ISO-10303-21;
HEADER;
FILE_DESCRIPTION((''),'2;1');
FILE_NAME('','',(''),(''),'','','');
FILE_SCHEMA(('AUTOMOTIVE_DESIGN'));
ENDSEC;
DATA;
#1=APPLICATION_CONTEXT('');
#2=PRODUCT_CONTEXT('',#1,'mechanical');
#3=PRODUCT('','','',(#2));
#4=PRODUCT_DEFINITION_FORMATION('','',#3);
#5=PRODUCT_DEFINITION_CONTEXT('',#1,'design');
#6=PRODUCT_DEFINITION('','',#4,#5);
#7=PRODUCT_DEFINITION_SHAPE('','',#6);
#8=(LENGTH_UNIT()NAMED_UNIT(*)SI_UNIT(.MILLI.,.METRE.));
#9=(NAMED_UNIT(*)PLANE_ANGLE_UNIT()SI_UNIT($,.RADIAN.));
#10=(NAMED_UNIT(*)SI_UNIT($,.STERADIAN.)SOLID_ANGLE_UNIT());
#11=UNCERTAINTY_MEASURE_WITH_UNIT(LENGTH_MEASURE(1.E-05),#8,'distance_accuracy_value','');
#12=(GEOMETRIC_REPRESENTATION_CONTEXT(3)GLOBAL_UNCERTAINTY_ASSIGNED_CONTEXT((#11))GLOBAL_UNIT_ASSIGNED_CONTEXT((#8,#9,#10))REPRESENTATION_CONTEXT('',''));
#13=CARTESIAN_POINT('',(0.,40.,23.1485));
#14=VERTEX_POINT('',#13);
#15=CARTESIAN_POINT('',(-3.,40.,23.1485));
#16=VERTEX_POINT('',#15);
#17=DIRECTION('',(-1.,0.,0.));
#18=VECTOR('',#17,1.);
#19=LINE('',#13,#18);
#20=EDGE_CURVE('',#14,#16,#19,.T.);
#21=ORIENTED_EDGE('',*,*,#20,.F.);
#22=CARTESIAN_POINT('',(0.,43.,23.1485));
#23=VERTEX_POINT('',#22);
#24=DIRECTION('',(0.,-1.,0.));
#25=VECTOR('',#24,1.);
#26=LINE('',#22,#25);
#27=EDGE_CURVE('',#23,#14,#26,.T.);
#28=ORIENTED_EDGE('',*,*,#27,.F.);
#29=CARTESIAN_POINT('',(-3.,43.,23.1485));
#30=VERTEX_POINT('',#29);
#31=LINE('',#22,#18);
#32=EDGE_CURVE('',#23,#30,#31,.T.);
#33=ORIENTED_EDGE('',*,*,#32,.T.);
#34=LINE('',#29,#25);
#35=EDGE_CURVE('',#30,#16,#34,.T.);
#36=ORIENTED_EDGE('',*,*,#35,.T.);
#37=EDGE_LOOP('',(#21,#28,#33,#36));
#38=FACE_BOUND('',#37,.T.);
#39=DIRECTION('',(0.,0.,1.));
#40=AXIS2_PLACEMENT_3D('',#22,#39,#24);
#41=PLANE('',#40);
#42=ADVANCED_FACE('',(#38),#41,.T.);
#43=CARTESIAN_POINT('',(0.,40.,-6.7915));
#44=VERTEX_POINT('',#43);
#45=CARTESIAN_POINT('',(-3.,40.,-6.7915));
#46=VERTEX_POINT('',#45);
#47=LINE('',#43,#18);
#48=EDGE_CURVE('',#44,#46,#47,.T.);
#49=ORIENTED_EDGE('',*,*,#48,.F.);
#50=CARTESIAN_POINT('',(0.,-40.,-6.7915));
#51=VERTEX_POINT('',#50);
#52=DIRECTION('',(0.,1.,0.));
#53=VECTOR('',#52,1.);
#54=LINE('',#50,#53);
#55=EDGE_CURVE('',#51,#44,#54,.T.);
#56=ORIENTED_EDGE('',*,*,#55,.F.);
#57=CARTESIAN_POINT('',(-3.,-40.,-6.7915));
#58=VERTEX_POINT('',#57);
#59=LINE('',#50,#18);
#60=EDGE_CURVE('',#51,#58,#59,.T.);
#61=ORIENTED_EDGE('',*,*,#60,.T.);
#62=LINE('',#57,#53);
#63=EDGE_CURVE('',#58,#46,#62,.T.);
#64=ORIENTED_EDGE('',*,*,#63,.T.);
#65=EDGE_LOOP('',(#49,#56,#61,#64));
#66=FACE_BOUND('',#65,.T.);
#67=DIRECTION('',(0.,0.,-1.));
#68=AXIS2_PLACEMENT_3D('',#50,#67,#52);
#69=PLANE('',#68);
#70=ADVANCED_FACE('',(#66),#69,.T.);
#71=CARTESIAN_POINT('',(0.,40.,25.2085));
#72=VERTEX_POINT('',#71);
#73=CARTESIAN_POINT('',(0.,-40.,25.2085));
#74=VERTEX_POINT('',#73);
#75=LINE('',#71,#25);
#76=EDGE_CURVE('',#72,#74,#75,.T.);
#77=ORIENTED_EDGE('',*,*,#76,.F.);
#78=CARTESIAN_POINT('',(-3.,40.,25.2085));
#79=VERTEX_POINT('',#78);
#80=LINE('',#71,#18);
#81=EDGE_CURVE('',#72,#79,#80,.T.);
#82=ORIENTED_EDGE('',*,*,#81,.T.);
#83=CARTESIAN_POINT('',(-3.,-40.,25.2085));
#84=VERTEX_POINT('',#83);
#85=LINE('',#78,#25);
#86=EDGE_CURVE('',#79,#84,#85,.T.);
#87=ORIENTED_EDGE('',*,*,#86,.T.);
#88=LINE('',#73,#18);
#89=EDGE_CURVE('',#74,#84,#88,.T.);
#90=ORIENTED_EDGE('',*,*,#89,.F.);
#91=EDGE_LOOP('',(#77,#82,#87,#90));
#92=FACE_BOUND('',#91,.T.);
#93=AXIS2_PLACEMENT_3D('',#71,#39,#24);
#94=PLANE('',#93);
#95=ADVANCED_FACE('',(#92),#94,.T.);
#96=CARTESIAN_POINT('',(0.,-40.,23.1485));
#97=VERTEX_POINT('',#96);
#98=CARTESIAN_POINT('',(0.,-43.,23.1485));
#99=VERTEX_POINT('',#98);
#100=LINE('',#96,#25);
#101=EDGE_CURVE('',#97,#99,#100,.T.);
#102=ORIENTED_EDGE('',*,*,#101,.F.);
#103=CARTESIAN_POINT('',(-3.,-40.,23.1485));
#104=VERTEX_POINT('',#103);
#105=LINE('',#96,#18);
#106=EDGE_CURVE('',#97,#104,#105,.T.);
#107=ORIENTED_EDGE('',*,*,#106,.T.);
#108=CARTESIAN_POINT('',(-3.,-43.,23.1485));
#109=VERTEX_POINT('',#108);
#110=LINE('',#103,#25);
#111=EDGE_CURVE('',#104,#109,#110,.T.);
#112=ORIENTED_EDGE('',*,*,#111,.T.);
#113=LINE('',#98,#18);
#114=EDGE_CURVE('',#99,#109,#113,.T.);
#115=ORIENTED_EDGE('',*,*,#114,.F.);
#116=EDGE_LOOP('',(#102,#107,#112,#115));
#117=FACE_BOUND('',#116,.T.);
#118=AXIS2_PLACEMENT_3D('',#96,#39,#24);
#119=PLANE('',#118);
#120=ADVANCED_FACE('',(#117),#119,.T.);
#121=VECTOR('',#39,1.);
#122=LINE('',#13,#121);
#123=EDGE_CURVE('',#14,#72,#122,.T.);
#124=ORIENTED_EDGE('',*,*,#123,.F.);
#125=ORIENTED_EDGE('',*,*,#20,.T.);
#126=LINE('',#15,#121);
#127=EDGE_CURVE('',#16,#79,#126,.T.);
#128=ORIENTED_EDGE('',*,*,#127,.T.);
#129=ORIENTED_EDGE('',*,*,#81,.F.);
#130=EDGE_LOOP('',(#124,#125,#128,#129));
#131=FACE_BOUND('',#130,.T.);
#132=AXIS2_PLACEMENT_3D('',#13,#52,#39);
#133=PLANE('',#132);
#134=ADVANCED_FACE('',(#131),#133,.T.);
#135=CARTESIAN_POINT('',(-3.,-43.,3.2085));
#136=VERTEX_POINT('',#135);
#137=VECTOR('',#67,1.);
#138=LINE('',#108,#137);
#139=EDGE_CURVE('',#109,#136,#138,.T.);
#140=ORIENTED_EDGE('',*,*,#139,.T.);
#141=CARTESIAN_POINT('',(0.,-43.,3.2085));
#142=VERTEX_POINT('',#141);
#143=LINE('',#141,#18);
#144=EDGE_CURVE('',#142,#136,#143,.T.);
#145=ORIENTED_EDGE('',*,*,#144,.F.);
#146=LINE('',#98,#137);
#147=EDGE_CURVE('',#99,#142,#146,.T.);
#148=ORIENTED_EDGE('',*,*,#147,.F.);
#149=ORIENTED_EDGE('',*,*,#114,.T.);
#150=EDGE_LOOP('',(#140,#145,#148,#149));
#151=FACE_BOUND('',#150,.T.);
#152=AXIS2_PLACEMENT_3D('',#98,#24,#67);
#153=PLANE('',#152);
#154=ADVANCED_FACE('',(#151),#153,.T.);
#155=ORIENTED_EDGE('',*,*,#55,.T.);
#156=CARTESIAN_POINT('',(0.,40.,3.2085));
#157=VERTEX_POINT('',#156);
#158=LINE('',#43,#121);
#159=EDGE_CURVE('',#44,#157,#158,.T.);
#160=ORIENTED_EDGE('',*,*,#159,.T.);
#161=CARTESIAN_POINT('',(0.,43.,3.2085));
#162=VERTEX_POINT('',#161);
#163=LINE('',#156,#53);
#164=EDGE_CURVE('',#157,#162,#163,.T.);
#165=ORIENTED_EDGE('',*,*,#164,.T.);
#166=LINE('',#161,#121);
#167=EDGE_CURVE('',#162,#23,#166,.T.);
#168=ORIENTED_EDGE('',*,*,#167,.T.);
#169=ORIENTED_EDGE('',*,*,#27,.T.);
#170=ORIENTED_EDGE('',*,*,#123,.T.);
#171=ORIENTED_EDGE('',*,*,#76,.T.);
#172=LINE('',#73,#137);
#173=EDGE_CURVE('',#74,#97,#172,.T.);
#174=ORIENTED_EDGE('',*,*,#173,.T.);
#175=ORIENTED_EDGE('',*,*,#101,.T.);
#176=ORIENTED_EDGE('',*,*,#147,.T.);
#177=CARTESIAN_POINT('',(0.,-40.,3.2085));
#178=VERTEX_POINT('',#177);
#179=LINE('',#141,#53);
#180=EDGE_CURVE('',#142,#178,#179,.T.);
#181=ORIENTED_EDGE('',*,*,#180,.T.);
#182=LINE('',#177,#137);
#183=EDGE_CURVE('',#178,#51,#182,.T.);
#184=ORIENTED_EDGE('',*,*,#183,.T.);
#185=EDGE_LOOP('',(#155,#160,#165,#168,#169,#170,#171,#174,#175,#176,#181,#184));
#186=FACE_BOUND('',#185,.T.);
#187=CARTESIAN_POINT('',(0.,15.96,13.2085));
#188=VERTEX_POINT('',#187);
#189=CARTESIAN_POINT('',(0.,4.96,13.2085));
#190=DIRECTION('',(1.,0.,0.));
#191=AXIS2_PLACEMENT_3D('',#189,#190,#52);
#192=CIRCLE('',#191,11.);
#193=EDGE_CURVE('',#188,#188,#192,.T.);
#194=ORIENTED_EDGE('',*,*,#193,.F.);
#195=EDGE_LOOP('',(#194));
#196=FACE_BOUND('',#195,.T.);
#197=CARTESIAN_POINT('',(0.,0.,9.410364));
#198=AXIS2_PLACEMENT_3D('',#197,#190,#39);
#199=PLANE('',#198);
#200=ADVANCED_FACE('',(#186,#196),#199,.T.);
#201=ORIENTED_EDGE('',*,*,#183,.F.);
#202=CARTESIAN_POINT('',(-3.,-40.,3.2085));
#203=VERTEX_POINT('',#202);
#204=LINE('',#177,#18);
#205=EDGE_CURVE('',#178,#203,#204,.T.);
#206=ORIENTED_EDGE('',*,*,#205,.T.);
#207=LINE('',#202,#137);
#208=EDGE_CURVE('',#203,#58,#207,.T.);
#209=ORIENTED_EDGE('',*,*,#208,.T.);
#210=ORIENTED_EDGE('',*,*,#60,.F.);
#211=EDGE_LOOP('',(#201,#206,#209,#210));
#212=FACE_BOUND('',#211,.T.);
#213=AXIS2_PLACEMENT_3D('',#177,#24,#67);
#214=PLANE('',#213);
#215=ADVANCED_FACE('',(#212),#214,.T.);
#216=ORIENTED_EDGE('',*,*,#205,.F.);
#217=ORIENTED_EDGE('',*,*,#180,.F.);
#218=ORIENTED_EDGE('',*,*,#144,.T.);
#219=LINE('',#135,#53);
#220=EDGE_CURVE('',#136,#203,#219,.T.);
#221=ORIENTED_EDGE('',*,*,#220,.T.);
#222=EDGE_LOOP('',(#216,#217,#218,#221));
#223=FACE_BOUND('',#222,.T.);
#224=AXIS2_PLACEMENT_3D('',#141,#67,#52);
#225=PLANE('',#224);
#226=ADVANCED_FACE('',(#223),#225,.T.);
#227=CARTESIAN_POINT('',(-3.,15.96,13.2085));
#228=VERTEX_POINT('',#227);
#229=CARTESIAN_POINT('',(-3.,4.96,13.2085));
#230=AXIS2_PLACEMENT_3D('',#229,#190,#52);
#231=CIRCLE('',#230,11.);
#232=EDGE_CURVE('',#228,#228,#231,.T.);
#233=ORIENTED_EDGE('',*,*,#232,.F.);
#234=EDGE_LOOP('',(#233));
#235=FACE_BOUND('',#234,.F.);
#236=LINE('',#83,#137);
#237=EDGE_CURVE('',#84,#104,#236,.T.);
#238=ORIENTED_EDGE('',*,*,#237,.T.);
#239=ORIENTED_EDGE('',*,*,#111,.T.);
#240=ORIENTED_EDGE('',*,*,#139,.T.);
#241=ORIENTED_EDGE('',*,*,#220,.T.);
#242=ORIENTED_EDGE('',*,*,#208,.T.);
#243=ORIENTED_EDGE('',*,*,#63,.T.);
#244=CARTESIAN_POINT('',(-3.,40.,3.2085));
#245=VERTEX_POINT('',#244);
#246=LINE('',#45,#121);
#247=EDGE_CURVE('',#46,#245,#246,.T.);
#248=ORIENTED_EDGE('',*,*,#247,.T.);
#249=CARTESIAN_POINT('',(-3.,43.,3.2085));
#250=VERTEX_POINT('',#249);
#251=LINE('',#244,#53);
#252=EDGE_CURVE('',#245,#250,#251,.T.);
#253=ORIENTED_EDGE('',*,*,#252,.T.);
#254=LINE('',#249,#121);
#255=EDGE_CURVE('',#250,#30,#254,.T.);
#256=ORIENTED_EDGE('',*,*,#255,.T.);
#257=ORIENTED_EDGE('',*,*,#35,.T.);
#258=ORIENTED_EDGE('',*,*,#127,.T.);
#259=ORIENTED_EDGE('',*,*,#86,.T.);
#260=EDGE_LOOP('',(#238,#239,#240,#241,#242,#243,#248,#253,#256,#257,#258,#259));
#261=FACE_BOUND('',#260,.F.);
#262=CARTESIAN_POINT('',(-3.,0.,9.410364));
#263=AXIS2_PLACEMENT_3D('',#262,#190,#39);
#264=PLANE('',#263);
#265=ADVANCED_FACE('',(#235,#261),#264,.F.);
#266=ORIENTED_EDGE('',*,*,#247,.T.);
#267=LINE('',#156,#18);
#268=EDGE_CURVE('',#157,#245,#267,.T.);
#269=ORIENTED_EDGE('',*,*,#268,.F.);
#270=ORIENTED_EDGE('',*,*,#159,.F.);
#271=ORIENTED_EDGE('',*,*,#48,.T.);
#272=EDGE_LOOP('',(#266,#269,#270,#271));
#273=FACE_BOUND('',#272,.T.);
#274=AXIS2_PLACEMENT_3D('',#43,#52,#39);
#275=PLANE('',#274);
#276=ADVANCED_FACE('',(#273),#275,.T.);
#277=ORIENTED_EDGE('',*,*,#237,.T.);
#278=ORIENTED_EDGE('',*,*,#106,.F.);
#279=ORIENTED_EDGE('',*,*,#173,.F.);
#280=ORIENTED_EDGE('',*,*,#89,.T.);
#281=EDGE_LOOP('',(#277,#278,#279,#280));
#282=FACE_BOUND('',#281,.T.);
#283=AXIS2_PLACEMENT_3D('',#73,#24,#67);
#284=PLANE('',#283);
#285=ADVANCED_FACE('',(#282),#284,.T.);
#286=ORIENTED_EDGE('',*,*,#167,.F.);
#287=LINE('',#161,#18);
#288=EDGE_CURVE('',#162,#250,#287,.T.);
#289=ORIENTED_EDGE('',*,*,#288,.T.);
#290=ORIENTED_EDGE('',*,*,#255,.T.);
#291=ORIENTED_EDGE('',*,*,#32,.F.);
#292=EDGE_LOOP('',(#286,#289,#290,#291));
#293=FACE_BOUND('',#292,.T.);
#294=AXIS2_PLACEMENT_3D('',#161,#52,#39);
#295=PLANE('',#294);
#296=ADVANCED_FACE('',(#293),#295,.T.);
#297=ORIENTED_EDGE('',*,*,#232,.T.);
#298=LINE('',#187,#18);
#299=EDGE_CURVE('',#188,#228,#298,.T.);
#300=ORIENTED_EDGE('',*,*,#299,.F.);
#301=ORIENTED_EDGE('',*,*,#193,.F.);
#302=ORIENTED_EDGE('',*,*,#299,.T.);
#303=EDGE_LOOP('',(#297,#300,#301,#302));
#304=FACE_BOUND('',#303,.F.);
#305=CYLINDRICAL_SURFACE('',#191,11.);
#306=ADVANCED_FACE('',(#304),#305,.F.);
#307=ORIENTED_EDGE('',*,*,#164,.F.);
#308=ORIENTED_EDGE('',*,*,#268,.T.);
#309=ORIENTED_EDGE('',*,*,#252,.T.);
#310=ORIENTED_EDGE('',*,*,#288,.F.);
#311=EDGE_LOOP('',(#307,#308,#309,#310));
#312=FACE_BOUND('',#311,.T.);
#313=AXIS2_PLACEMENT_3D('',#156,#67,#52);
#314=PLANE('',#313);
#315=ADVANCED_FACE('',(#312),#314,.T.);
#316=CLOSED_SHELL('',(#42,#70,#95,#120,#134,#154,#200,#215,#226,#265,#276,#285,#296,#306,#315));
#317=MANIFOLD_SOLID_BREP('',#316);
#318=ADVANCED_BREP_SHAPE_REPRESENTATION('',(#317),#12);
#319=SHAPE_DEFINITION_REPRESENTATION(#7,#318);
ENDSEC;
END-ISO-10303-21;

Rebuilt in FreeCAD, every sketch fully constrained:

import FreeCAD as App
import Part
import Sketcher
Q = App.Units.Quantity

doc = App.newDocument("Part")
body = doc.addObject("PartDesign::Body", "Body")

# Sketch on YZ plane
sketch1 = body.newObject("Sketcher::SketchObject", "Sketch")
sketch1.AttachmentSupport = (doc.getObject("YZ_Plane"), [""])
sketch1.MapMode = "FlatFace"
sketch1.addGeometry([
    Part.LineSegment(App.Vector(-40, -6.7915, 0), App.Vector(40, -6.7915, 0)),  # 0
    Part.LineSegment(App.Vector(40, -6.7915, 0), App.Vector(40, 3.2085, 0)),  # 1
    Part.LineSegment(App.Vector(40, 3.2085, 0), App.Vector(43, 3.2085, 0)),  # 2
    Part.LineSegment(App.Vector(43, 3.2085, 0), App.Vector(43, 23.1485, 0)),  # 3
    Part.LineSegment(App.Vector(43, 23.1485, 0), App.Vector(40, 23.1485, 0)),  # 4
    Part.LineSegment(App.Vector(40, 23.1485, 0), App.Vector(40, 25.2085, 0)),  # 5
    Part.LineSegment(App.Vector(40, 25.2085, 0), App.Vector(-40, 25.2085, 0)),  # 6
    Part.LineSegment(App.Vector(-40, 25.2085, 0), App.Vector(-40, 23.1485, 0)),  # 7
    Part.LineSegment(App.Vector(-40, 23.1485, 0), App.Vector(-43, 23.1485, 0)),  # 8
    Part.LineSegment(App.Vector(-43, 23.1485, 0), App.Vector(-43, 3.2085, 0)),  # 9
    Part.LineSegment(App.Vector(-43, 3.2085, 0), App.Vector(-40, 3.2085, 0)),  # 10
    Part.LineSegment(App.Vector(-40, 3.2085, 0), App.Vector(-40, -6.7915, 0)),  # 11
    Part.Circle(App.Vector(4.96, 13.2085, 0), App.Vector(0, 0, 1), 11),  # 12
], False)
sketch1.addConstraint([
    Sketcher.Constraint("Coincident", 0, 2, 1, 1),
    Sketcher.Constraint("Coincident", 1, 2, 2, 1),
    Sketcher.Constraint("Coincident", 2, 2, 3, 1),
    Sketcher.Constraint("Coincident", 3, 2, 4, 1),
    Sketcher.Constraint("Coincident", 4, 2, 5, 1),
    Sketcher.Constraint("Coincident", 5, 2, 6, 1),
    Sketcher.Constraint("Coincident", 6, 2, 7, 1),
    Sketcher.Constraint("Coincident", 7, 2, 8, 1),
    Sketcher.Constraint("Coincident", 8, 2, 9, 1),
    Sketcher.Constraint("Coincident", 9, 2, 10, 1),
    Sketcher.Constraint("Coincident", 10, 2, 11, 1),
    Sketcher.Constraint("Coincident", 11, 2, 0, 1),
    Sketcher.Constraint("Horizontal", 0),
    Sketcher.Constraint("Vertical", 1),
    Sketcher.Constraint("Horizontal", 2),
    Sketcher.Constraint("Vertical", 3),
    Sketcher.Constraint("Horizontal", 4),
    Sketcher.Constraint("Vertical", 5),
    Sketcher.Constraint("Horizontal", 6),
    Sketcher.Constraint("Vertical", 7),
    Sketcher.Constraint("Horizontal", 8),
    Sketcher.Constraint("Vertical", 9),
    Sketcher.Constraint("Horizontal", 10),
    Sketcher.Constraint("Vertical", 11),
    Sketcher.Constraint("Symmetric", 4, 2, 7, 2, -2),
    Sketcher.Constraint("Symmetric", 2, 2, 9, 2, -2),
    Sketcher.Constraint("Vertical", 1, 2, 4, 2),
    Sketcher.Constraint("Vertical", 7, 2, 10, 2),
    Sketcher.Constraint("Diameter", 12, Q("22 mm")),
    Sketcher.Constraint("DistanceX", -1, 1, 0, 2, Q("40 mm")),
    Sketcher.Constraint("DistanceX", -1, 1, 2, 2, Q("43 mm")),
    Sketcher.Constraint("DistanceY", 1, 1, 1, 2, Q("10 mm")),
    Sketcher.Constraint("DistanceY", 0, 2, 12, 3, Q("20 mm")),
    Sketcher.Constraint("DistanceY", 1, 2, 5, 2, Q("22 mm")),
    Sketcher.Constraint("DistanceY", 3, 1, 3, 2, Q("19.94 mm")),
    Sketcher.Constraint("DistanceX", -1, 1, 12, 3, Q("4.96 mm")),
    Sketcher.Constraint("DistanceY", -1, 1, 12, 3, Q("13.2085 mm")),
])
pad1 = body.newObject("PartDesign::Pad", "Pad")
pad1.Profile = sketch1
pad1.Length = 3
pad1.Reversed = True

doc.recompute()
